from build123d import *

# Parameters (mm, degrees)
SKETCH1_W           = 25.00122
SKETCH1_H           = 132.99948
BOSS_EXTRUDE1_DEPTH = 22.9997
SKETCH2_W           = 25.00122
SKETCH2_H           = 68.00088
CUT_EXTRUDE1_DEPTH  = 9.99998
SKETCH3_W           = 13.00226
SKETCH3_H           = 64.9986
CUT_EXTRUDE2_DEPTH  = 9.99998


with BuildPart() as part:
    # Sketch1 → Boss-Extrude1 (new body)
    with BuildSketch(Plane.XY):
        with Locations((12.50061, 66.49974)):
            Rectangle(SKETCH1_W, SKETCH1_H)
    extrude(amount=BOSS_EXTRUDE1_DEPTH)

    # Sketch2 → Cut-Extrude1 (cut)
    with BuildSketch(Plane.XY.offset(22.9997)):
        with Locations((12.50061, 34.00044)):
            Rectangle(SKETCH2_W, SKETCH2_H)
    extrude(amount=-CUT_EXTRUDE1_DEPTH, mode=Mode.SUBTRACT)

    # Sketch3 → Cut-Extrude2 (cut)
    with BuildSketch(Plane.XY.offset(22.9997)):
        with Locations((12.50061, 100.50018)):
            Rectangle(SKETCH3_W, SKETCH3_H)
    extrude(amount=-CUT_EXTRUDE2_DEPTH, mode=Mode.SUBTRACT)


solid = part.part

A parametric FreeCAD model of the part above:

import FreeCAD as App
import Part
import Sketcher
Q = App.Units.Quantity

doc = App.newDocument("Part")
body = doc.addObject("PartDesign::Body", "Body")

# Sketch on XY plane
sketch1 = body.newObject("Sketcher::SketchObject", "Sketch")
sketch1.AttachmentSupport = (doc.getObject("XY_Plane"), [""])
sketch1.MapMode = "FlatFace"
sketch1.addGeometry([
    Part.LineSegment(App.Vector(0, 133, 0), App.Vector(0, 0, 0)),
    Part.LineSegment(App.Vector(0, 0, 0), App.Vector(25, 0, 0)),
    Part.LineSegment(App.Vector(25, 0, 0), App.Vector(25, 133, 0)),
    Part.LineSegment(App.Vector(25, 133, 0), App.Vector(0, 133, 0)),
], False)
sketch1.addConstraint([
    Sketcher.Constraint("Coincident", 0, 2, 1, 1),
    Sketcher.Constraint("Coincident", 1, 2, 2, 1),
    Sketcher.Constraint("Coincident", 2, 2, 3, 1),
    Sketcher.Constraint("Coincident", 3, 2, 0, 1),
    Sketcher.Constraint("Vertical", 0),
    Sketcher.Constraint("Horizontal", 1),
    Sketcher.Constraint("Vertical", 2),
    Sketcher.Constraint("Horizontal", 3),
    Sketcher.Constraint("Coincident", 0, 2, -1, 1),
    Sketcher.Constraint("DistanceX", 1, 1, 1, 2, Q("0.9843 in")),
    Sketcher.Constraint("DistanceY", 0, 2, 0, 1, Q("5.2362 in")),
])
pad1 = body.newObject("PartDesign::Pad", "Pad")
pad1.Profile = sketch1
pad1.Length = Q("0.9055 in")

# Sketch on XY plane
sketch2 = body.newObject("Sketcher::SketchObject", "Sketch001")
sketch2.AttachmentSupport = (doc.getObject("XY_Plane"), [""])
sketch2.MapMode = "FlatFace"
sketch2.AttachmentOffset = App.Placement(App.Vector(0, 0, 0.9055 * 25.4), App.Rotation())
sketch2.addGeometry([
    Part.LineSegment(App.Vector(0, 68, 0), App.Vector(0, 0, 0)),
    Part.LineSegment(App.Vector(0, 0, 0), App.Vector(25, 0, 0)),
    Part.LineSegment(App.Vector(25, 0, 0), App.Vector(25, 68, 0)),
    Part.LineSegment(App.Vector(25, 68, 0), App.Vector(0, 68, 0)),
], False)
sketch2.addConstraint([
    Sketcher.Constraint("Coincident", 0, 2, 1, 1),
    Sketcher.Constraint("Coincident", 1, 2, 2, 1),
    Sketcher.Constraint("Coincident", 2, 2, 3, 1),
    Sketcher.Constraint("Coincident", 3, 2, 0, 1),
    Sketcher.Constraint("Vertical", 0),
    Sketcher.Constraint("Horizontal", 1),
    Sketcher.Constraint("Vertical", 2),
    Sketcher.Constraint("Horizontal", 3),
    Sketcher.Constraint("Coincident", 0, 2, -1, 1),
    Sketcher.Constraint("DistanceX", 1, 1, 1, 2, Q("0.9843 in")),
    Sketcher.Constraint("DistanceY", 0, 2, 0, 1, Q("2.6772 in")),
])
pocket1 = body.newObject("PartDesign::Pocket", "Pocket")
pocket1.Profile = sketch2
pocket1.Length = Q("0.3937 in")

# Sketch on XY plane
sketch3 = body.newObject("Sketcher::SketchObject", "Sketch002")
sketch3.AttachmentSupport = (doc.getObject("XY_Plane"), [""])
sketch3.MapMode = "FlatFace"
sketch3.AttachmentOffset = App.Placement(App.Vector(0, 0, 0.9055 * 25.4), App.Rotation())
sketch3.addGeometry([
    Part.LineSegment(App.Vector(6, 133, 0), App.Vector(6, 68, 0)),
    Part.LineSegment(App.Vector(6, 68, 0), App.Vector(19, 68, 0)),
    Part.LineSegment(App.Vector(19, 68, 0), App.Vector(19, 133, 0)),
    Part.LineSegment(App.Vector(19, 133, 0), App.Vector(6, 133, 0)),
], False)
sketch3.addConstraint([
    Sketcher.Constraint("Coincident", 0, 2, 1, 1),
    Sketcher.Constraint("Coincident", 1, 2, 2, 1),
    Sketcher.Constraint("Coincident", 2, 2, 3, 1),
    Sketcher.Constraint("Coincident", 3, 2, 0, 1),
    Sketcher.Constraint("Vertical", 0),
    Sketcher.Constraint("Horizontal", 1),
    Sketcher.Constraint("Vertical", 2),
    Sketcher.Constraint("Horizontal", 3),
    Sketcher.Constraint("DistanceY", 0, 2, 0, 1, Q("2.559 in")),
    Sketcher.Constraint("DistanceX", 1, 1, 1, 2, Q("0.5119 in")),
    Sketcher.Constraint("DistanceX", -1, 1, 0, 2, Q("0.2362 in")),
    Sketcher.Constraint("DistanceY", -1, 1, 0, 2, Q("2.6772 in")),
])
pocket2 = body.newObject("PartDesign::Pocket", "Pocket001")
pocket2.Profile = sketch3
pocket2.Length = Q("0.3937 in")

doc.recompute()
